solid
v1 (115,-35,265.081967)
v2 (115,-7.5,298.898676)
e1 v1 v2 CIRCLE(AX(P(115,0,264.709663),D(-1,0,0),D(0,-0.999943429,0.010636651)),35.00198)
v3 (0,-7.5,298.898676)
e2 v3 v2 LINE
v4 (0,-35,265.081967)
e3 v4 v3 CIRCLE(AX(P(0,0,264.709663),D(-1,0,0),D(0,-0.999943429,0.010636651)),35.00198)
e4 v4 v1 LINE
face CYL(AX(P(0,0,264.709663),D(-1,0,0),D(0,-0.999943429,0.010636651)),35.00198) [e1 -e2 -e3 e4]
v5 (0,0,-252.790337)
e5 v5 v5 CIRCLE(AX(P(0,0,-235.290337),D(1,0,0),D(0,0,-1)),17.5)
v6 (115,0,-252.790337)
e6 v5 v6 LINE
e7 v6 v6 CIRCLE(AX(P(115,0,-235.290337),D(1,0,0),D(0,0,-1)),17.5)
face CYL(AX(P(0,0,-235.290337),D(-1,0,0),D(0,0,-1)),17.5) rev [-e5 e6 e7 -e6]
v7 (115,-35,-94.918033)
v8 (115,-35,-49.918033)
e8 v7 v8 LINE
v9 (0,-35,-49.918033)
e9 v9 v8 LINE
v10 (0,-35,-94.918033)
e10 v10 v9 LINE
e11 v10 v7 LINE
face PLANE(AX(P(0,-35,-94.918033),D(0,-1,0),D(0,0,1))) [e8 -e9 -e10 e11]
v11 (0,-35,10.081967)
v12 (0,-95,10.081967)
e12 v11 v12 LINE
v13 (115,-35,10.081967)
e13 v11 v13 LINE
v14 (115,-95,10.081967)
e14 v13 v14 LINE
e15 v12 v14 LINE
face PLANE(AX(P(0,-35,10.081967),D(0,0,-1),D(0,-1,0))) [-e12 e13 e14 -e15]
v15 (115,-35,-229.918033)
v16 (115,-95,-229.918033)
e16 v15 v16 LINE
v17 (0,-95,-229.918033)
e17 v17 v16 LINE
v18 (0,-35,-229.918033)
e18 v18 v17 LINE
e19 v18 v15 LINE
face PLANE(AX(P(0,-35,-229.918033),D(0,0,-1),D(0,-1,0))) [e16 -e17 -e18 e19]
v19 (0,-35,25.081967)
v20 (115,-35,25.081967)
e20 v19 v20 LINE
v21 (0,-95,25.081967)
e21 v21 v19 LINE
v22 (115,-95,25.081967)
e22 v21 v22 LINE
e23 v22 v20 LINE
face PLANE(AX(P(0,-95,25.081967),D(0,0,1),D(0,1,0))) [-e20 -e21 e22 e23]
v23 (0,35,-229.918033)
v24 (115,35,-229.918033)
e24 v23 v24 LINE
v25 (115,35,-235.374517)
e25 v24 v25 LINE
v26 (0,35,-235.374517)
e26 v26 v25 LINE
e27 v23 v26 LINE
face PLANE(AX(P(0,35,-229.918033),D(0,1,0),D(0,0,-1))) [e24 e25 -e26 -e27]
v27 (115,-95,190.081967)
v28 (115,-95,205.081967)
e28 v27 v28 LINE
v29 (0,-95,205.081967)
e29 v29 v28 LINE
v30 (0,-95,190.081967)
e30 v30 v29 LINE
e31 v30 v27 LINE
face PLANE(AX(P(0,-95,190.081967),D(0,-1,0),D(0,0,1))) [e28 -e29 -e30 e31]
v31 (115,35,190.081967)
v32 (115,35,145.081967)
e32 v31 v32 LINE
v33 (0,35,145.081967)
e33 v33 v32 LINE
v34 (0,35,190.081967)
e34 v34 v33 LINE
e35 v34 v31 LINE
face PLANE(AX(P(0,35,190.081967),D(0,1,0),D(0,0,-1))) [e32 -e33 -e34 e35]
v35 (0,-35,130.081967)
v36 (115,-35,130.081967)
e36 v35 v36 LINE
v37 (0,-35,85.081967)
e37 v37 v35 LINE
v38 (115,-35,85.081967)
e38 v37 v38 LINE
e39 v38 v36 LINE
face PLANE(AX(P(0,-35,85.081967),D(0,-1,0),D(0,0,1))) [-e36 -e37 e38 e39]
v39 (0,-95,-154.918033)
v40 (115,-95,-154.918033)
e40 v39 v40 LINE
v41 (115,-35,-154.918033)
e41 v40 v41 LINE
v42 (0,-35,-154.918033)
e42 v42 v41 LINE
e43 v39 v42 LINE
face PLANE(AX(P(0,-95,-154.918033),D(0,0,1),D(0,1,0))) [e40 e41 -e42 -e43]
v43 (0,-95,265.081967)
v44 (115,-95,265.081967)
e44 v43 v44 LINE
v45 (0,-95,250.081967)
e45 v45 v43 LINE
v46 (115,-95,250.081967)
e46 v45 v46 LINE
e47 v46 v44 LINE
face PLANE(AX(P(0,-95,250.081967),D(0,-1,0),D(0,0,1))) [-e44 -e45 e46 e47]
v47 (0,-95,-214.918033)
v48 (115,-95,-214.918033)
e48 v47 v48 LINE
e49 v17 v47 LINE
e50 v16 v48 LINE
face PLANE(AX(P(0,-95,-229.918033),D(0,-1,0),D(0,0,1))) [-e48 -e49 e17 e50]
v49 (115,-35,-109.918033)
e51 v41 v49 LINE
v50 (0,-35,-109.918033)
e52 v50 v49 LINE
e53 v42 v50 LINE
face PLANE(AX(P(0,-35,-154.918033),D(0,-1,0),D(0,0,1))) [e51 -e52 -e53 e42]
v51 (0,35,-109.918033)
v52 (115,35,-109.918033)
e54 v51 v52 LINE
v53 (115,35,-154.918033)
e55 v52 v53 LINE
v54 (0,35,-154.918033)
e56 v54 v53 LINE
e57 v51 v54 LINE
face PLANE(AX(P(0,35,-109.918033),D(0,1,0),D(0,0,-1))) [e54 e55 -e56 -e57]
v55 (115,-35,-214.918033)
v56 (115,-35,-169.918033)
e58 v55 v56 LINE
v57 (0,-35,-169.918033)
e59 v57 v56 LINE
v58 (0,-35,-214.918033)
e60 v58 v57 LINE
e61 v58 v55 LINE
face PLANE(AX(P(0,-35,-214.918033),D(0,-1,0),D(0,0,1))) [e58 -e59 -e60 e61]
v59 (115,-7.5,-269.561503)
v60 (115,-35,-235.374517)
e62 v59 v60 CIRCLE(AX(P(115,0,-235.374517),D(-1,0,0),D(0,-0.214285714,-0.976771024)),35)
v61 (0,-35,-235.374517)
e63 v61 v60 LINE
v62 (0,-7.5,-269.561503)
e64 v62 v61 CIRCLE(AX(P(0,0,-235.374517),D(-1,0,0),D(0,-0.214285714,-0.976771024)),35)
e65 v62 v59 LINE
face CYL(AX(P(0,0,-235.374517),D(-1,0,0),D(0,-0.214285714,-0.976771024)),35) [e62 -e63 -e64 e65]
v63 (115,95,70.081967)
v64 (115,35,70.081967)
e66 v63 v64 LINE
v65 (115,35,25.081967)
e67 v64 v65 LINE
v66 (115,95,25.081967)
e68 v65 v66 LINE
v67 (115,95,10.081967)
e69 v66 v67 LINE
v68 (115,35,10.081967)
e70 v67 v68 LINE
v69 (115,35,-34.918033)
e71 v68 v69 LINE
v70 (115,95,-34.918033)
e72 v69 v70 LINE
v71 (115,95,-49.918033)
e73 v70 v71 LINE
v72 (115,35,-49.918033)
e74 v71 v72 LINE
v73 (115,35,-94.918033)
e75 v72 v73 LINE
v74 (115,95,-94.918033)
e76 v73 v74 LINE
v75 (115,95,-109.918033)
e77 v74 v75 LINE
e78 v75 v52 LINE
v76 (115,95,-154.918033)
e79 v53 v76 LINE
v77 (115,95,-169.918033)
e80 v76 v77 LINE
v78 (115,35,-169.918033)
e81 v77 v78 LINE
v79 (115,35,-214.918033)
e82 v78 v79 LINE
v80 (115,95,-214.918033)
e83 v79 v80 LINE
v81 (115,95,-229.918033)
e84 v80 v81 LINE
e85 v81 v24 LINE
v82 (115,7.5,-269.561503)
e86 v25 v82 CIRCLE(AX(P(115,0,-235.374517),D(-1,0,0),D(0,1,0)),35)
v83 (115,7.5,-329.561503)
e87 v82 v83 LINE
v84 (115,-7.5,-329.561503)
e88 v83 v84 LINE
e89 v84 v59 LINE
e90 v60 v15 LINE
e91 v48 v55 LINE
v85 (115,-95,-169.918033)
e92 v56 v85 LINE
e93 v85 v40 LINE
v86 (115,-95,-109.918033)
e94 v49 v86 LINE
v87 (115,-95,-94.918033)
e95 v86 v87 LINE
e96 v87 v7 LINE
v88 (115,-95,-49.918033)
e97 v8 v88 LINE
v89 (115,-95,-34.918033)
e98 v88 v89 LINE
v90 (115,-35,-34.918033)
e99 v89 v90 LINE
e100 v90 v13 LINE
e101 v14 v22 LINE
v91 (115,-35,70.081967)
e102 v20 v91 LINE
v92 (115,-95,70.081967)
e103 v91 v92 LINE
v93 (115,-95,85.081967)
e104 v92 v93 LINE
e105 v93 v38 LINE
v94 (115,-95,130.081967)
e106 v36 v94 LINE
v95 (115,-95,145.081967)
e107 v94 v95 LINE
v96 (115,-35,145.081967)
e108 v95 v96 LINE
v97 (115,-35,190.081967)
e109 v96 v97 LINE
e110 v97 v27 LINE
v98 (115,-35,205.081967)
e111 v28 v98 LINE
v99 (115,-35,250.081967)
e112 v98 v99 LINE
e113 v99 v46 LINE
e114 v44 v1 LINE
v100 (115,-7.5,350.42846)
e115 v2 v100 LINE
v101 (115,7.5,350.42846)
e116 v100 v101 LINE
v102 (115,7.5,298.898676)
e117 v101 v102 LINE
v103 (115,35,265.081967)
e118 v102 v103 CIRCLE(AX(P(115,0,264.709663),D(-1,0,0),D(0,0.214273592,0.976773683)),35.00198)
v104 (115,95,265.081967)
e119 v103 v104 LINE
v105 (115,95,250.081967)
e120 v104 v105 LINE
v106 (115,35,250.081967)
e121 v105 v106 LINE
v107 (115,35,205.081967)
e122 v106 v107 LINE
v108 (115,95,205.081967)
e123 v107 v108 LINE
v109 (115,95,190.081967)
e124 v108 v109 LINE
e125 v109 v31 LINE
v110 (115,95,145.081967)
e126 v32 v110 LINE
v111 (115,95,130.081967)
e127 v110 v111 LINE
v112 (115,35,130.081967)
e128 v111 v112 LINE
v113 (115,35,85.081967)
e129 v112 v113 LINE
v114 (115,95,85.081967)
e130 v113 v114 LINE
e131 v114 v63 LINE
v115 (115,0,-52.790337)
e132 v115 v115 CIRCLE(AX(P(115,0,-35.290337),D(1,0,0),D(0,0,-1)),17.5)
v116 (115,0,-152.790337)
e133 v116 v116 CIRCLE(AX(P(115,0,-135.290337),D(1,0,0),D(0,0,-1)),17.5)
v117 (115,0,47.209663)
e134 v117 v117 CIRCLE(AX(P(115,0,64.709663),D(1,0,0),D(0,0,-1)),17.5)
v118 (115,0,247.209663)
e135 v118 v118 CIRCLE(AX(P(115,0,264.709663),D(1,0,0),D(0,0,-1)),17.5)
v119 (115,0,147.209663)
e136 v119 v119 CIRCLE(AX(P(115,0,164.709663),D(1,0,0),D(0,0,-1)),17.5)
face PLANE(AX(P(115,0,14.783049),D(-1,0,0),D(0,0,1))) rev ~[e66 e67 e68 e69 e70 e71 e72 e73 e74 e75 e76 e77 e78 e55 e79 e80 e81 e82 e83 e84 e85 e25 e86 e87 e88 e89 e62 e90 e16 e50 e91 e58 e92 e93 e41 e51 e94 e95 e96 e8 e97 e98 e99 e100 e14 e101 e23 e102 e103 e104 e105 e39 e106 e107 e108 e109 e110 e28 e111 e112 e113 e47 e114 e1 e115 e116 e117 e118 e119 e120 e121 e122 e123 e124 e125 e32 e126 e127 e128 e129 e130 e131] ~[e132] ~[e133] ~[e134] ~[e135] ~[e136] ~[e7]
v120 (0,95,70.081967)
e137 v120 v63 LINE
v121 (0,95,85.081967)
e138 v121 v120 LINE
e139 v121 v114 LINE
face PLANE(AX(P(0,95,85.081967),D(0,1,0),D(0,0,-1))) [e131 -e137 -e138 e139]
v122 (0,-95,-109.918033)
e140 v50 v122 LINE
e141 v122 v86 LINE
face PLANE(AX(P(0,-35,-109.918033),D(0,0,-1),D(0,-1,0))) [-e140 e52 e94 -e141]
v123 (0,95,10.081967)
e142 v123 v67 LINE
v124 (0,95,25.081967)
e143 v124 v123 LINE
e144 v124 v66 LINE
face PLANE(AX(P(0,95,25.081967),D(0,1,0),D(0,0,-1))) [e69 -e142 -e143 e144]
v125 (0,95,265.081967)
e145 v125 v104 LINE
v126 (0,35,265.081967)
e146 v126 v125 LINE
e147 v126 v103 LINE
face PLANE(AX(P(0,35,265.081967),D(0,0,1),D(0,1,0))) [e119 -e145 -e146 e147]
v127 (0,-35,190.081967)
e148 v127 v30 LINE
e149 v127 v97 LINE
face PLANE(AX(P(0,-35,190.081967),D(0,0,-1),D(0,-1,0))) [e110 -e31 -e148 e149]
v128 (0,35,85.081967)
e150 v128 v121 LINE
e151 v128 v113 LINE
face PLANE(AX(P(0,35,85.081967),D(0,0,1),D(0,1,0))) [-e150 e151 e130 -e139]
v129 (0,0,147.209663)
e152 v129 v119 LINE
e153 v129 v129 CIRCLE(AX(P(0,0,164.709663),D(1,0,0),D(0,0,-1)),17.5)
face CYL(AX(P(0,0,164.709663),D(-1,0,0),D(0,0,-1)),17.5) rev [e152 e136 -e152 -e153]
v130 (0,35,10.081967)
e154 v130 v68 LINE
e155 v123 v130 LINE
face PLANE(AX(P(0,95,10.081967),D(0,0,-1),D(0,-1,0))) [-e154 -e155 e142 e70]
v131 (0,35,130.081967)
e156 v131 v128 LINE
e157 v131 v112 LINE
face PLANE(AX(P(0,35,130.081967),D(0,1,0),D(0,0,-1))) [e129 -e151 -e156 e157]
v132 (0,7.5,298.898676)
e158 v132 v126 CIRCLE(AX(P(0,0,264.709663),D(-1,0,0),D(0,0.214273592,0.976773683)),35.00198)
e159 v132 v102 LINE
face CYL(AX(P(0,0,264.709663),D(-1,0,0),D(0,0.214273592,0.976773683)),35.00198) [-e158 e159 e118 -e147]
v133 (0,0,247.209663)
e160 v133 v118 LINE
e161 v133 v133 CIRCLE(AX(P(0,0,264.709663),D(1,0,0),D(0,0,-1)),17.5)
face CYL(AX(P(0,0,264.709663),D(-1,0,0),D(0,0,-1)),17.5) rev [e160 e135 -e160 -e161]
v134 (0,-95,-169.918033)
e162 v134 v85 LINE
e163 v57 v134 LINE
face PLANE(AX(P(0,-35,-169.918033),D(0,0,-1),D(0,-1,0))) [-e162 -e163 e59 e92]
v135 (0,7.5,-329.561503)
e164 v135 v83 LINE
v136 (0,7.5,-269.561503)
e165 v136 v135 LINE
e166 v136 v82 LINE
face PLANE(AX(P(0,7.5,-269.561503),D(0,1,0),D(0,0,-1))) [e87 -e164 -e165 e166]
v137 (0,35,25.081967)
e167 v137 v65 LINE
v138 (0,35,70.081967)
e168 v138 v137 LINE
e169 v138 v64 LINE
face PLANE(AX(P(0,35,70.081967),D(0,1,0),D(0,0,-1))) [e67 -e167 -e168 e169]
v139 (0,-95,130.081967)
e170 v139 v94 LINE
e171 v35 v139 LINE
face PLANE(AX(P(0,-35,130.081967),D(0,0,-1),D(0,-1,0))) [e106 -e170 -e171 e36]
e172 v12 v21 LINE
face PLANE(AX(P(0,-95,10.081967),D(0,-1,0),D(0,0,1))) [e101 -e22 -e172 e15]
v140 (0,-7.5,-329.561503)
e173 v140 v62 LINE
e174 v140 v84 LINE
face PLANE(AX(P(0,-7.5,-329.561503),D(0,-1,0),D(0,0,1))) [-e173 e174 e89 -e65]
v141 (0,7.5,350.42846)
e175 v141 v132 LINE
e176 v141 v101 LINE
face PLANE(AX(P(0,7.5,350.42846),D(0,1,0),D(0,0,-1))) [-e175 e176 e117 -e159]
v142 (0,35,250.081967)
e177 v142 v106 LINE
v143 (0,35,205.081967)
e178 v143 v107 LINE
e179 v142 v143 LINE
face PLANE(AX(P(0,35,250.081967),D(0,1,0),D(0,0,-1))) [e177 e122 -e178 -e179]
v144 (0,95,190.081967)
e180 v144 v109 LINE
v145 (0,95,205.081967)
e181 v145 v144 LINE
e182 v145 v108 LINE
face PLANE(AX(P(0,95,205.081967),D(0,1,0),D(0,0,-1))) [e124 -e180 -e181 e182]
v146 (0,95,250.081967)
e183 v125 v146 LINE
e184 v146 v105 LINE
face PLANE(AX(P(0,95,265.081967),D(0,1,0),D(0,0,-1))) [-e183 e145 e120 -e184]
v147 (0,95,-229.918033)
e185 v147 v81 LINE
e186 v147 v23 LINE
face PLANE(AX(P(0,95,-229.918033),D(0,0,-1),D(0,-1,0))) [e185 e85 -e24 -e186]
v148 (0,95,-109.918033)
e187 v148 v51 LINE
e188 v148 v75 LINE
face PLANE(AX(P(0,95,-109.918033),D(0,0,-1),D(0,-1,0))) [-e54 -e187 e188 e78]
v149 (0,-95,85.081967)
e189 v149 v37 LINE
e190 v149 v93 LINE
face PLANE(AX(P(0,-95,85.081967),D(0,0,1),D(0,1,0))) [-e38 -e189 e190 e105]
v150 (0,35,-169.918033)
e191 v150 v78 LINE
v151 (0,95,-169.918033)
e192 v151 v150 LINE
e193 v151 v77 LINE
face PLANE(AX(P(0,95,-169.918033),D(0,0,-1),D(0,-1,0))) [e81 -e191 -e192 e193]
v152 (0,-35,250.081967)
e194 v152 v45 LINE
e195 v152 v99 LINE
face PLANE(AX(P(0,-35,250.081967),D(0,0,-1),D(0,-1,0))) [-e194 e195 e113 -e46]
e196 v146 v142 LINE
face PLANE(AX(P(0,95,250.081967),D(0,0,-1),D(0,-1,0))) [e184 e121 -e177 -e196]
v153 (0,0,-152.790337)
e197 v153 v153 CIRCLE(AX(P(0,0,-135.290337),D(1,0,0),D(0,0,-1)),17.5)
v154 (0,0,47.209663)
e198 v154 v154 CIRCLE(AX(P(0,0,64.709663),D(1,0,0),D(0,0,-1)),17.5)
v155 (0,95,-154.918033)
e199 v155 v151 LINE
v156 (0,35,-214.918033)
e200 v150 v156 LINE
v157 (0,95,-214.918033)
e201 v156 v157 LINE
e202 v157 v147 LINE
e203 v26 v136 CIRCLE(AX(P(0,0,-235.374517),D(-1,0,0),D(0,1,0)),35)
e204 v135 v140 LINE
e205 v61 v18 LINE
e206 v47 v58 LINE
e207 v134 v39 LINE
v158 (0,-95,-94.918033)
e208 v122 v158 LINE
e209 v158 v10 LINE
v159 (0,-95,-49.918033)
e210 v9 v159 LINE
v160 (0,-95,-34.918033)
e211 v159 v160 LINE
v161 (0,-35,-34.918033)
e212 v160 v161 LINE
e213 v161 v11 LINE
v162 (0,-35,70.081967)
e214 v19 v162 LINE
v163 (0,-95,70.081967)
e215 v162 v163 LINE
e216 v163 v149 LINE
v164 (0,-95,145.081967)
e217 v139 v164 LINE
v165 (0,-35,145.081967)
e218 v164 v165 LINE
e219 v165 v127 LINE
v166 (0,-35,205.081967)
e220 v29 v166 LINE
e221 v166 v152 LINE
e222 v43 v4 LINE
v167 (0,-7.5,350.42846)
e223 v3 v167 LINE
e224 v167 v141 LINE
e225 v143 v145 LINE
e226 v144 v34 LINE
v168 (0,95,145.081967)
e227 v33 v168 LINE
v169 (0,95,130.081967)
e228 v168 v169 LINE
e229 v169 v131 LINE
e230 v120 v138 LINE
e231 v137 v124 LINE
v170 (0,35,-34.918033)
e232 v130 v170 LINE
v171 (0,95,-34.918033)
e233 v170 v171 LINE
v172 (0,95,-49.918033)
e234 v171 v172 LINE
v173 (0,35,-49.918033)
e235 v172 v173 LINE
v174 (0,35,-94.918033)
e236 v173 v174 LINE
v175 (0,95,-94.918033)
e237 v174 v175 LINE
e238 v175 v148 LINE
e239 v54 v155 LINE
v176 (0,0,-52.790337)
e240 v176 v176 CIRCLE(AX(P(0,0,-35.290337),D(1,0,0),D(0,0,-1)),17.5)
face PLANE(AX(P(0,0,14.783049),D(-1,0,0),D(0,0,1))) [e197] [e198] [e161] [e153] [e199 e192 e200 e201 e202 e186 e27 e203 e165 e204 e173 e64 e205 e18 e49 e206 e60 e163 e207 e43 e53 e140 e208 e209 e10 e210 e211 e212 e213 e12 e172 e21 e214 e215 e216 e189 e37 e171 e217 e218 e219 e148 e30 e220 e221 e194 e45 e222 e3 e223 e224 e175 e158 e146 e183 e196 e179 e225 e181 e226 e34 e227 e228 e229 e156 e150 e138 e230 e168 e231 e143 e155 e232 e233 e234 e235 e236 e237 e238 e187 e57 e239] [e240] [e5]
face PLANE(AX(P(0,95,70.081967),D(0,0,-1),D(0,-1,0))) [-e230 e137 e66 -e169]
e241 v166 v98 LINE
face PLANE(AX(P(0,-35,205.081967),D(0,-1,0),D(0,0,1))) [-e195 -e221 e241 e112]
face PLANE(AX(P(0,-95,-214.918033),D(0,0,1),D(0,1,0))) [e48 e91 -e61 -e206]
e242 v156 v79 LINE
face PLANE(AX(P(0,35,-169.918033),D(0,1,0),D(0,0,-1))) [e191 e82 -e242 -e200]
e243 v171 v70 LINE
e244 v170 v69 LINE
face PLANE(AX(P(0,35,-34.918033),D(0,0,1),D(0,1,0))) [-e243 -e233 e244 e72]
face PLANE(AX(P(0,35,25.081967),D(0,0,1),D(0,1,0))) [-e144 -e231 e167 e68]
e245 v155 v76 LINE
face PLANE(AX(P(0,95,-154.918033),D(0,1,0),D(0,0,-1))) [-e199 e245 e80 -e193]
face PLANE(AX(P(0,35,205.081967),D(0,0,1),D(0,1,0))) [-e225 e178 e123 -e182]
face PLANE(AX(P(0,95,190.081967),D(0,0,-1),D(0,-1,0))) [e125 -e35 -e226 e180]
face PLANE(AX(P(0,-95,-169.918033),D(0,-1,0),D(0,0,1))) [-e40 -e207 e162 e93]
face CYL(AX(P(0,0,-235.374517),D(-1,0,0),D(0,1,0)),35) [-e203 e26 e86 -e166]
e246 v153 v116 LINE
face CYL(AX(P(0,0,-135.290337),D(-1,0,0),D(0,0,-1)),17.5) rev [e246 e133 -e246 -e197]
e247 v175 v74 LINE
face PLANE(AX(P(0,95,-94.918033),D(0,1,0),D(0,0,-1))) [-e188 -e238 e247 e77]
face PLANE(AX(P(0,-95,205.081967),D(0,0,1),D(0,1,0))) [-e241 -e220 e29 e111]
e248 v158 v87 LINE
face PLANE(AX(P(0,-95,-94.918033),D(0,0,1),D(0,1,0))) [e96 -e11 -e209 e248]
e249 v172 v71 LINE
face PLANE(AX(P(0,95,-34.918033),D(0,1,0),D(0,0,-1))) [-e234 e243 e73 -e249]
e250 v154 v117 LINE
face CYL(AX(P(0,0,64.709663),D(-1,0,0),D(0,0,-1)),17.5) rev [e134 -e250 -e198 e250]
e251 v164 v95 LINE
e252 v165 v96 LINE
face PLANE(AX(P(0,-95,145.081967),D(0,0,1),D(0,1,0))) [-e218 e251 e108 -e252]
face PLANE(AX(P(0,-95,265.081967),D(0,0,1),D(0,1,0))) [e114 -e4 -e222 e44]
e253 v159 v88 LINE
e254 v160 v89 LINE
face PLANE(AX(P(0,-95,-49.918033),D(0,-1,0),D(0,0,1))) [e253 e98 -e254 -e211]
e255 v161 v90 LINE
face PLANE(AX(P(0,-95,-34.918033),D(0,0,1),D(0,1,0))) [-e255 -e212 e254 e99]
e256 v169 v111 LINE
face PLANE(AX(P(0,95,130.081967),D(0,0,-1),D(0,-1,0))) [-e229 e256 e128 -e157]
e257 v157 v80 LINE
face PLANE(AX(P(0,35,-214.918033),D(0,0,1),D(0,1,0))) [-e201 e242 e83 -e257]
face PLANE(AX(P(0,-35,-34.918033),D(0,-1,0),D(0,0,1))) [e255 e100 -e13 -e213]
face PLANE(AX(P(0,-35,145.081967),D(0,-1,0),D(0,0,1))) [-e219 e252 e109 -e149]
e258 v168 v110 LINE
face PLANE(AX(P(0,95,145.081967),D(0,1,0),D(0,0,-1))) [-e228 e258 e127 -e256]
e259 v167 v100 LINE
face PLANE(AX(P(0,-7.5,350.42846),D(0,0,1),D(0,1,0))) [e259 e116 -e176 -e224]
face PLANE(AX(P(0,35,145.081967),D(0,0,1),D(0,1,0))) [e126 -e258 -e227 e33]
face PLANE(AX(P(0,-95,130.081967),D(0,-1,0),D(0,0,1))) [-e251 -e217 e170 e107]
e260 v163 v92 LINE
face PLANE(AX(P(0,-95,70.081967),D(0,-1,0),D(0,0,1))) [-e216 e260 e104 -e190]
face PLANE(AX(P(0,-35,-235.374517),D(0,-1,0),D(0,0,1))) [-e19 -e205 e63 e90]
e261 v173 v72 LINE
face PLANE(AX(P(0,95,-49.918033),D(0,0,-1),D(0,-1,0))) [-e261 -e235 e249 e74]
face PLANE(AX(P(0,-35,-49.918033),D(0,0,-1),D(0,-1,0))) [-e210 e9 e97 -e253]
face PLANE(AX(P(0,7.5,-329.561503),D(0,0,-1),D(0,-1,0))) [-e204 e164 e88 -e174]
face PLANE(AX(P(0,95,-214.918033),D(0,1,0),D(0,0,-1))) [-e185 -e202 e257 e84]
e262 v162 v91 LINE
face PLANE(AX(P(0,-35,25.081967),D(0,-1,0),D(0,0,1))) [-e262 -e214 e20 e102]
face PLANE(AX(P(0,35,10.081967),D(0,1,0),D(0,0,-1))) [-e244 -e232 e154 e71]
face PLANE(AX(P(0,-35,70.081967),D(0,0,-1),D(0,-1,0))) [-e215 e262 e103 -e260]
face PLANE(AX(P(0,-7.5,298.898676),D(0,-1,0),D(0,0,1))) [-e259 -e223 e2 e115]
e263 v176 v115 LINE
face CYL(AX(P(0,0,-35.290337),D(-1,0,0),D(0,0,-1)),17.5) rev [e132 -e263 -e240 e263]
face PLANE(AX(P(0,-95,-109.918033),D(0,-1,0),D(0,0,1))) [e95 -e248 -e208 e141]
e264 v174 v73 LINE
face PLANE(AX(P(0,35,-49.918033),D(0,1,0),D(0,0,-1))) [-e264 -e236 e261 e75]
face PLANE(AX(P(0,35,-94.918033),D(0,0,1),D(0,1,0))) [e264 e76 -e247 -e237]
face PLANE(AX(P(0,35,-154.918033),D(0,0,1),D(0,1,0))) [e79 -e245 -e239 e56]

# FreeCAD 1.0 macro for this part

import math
import FreeCAD as App
import Part
import Sketcher

V = App.Vector
Q = App.Units.Quantity

doc = App.newDocument("Part")
body = doc.addObject("PartDesign::Body", "Body")

sketch1 = body.newObject("Sketcher::SketchObject", "Sketch")
sketch1.AttachmentSupport = (doc.getObject("YZ_Plane"), [""])
sketch1.MapMode = "FlatFace"
sketch1.addGeometry(Part.LineSegment(V(35, 205.081967, 0), V(35, 250.081967, 0)), False)
sketch1.addGeometry(Part.LineSegment(V(35, 250.081967, 0), V(95, 250.081967, 0)), False)
sketch1.addGeometry(Part.LineSegment(V(95, 250.081967, 0), V(95, 265.081967, 0)), False)
sketch1.addGeometry(Part.LineSegment(V(95, 265.081967, 0), V(35, 265.081967, 0)), False)
sketch1.addGeometry(Part.ArcOfCircle(Part.Circle(V(0, 264.709663, 0), V(0, 0, 1), 35.00198), math.radians(0.609447), math.radians(77.627086)), False)
sketch1.addGeometry(Part.LineSegment(V(7.5, 298.898676, 0), V(7.5, 350.42846, 0)), False)
sketch1.addGeometry(Part.LineSegment(V(7.5, 350.42846, 0), V(-7.5, 350.42846, 0)), False)
sketch1.addGeometry(Part.LineSegment(V(-7.5, 350.42846, 0), V(-7.5, 298.898676, 0)), False)
sketch1.addGeometry(Part.ArcOfCircle(Part.Circle(V(0, 264.709663, 0), V(0, 0, 1), 35.00198), math.radians(102.372914), math.radians(179.390553)), False)
sketch1.addGeometry(Part.LineSegment(V(-35, 265.081967, 0), V(-95, 265.081967, 0)), False)
sketch1.addGeometry(Part.LineSegment(V(-95, 265.081967, 0), V(-95, 250.081967, 0)), False)
sketch1.addGeometry(Part.LineSegment(V(-95, 250.081967, 0), V(-35, 250.081967, 0)), False)
sketch1.addGeometry(Part.LineSegment(V(-35, 250.081967, 0), V(-35, 205.081967, 0)), False)
sketch1.addGeometry(Part.LineSegment(V(-35, 205.081967, 0), V(-95, 205.081967, 0)), False)
sketch1.addGeometry(Part.LineSegment(V(-95, 205.081967, 0), V(-95, 190.081967, 0)), False)
sketch1.addGeometry(Part.LineSegment(V(-95, 190.081967, 0), V(-35, 190.081967, 0)), False)
sketch1.addGeometry(Part.LineSegment(V(-35, 190.081967, 0), V(-35, 145.081967, 0)), False)
sketch1.addGeometry(Part.LineSegment(V(-35, 145.081967, 0), V(-95, 145.081967, 0)), False)
sketch1.addGeometry(Part.LineSegment(V(-95, 145.081967, 0), V(-95, 130.081967, 0)), False)
sketch1.addGeometry(Part.LineSegment(V(-95, 130.081967, 0), V(-35, 130.081967, 0)), False)
sketch1.addGeometry(Part.LineSegment(V(-35, 130.081967, 0), V(-35, 85.081967, 0)), False)
sketch1.addGeometry(Part.LineSegment(V(-35, 85.081967, 0), V(-95, 85.081967, 0)), False)
sketch1.addGeometry(Part.LineSegment(V(-95, 85.081967, 0), V(-95, 70.081967, 0)), False)
sketch1.addGeometry(Part.LineSegment(V(-95, 70.081967, 0), V(-35, 70.081967, 0)), False)
sketch1.addGeometry(Part.LineSegment(V(-35, 70.081967, 0), V(-35, 25.081967, 0)), False)
sketch1.addGeometry(Part.LineSegment(V(-35, 25.081967, 0), V(-95, 25.081967, 0)), False)
sketch1.addGeometry(Part.LineSegment(V(-95, 25.081967, 0), V(-95, 10.081967, 0)), False)
sketch1.addGeometry(Part.LineSegment(V(-95, 10.081967, 0), V(-35, 10.081967, 0)), False)
sketch1.addGeometry(Part.LineSegment(V(-35, 10.081967, 0), V(-35, -34.918033, 0)), False)
sketch1.addGeometry(Part.LineSegment(V(-35, -34.918033, 0), V(-95, -34.918033, 0)), False)
sketch1.addGeometry(Part.LineSegment(V(-95, -34.918033, 0), V(-95, -49.918033, 0)), False)
sketch1.addGeometry(Part.LineSegment(V(-95, -49.918033, 0), V(-35, -49.918033, 0)), False)
sketch1.addGeometry(Part.LineSegment(V(-35, -49.918033, 0), V(-35, -94.918033, 0)), False)
sketch1.addGeometry(Part.LineSegment(V(-35, -94.918033, 0), V(-95, -94.918033, 0)), False)
sketch1.addGeometry(Part.LineSegment(V(-95, -94.918033, 0), V(-95, -109.918033, 0)), False)
sketch1.addGeometry(Part.LineSegment(V(-95, -109.918033, 0), V(-35, -109.918033, 0)), False)
sketch1.addGeometry(Part.LineSegment(V(-35, -109.918033, 0), V(-35, -154.918033, 0)), False)
sketch1.addGeometry(Part.LineSegment(V(-35, -154.918033, 0), V(-95, -154.918033, 0)), False)
sketch1.addGeometry(Part.LineSegment(V(-95, -154.918033, 0), V(-95, -169.918033, 0)), False)
sketch1.addGeometry(Part.LineSegment(V(-95, -169.918033, 0), V(-35, -169.918033, 0)), False)
sketch1.addGeometry(Part.LineSegment(V(-35, -169.918033, 0), V(-35, -214.918033, 0)), False)
sketch1.addGeometry(Part.LineSegment(V(-35, -214.918033, 0), V(-95, -214.918033, 0)), False)
sketch1.addGeometry(Part.LineSegment(V(-95, -214.918033, 0), V(-95, -229.918033, 0)), False)
sketch1.addGeometry(Part.LineSegment(V(-95, -229.918033, 0), V(-35, -229.918033, 0)), False)
sketch1.addGeometry(Part.LineSegment(V(-35, -229.918033, 0), V(-35, -235.374517, 0)), False)
sketch1.addGeometry(Part.ArcOfCircle(Part.Circle(V(0, -235.374517, 0), V(0, 0, 1), 35), math.radians(180), math.radians(257.626375)), False)
sketch1.addGeometry(Part.LineSegment(V(-7.5, -269.561503, 0), V(-7.5, -329.561503, 0)), False)
sketch1.addGeometry(Part.LineSegment(V(-7.5, -329.561503, 0), V(7.5, -329.561503, 0)), False)
sketch1.addGeometry(Part.LineSegment(V(7.5, -329.561503, 0), V(7.5, -269.561503, 0)), False)
sketch1.addGeometry(Part.ArcOfCircle(Part.Circle(V(0, -235.374517, 0), V(0, 0, 1), 35), math.radians(-77.626375), math.radians(0)), False)
sketch1.addGeometry(Part.LineSegment(V(35, -235.374517, 0), V(35, -229.918033, 0)), False)
sketch1.addGeometry(Part.LineSegment(V(35, -229.918033, 0), V(95, -229.918033, 0)), False)
sketch1.addGeometry(Part.LineSegment(V(95, -229.918033, 0), V(95, -214.918033, 0)), False)
sketch1.addGeometry(Part.LineSegment(V(95, -214.918033, 0), V(35, -214.918033, 0)), False)
sketch1.addGeometry(Part.LineSegment(V(35, -214.918033, 0), V(35, -169.918033, 0)), False)
sketch1.addGeometry(Part.LineSegment(V(35, -169.918033, 0), V(95, -169.918033, 0)), False)
sketch1.addGeometry(Part.LineSegment(V(95, -169.918033, 0), V(95, -154.918033, 0)), False)
sketch1.addGeometry(Part.LineSegment(V(95, -154.918033, 0), V(35, -154.918033, 0)), False)
sketch1.addGeometry(Part.LineSegment(V(35, -154.918033, 0), V(35, -109.918033, 0)), False)
sketch1.addGeometry(Part.LineSegment(V(35, -109.918033, 0), V(95, -109.918033, 0)), False)
sketch1.addGeometry(Part.LineSegment(V(95, -109.918033, 0), V(95, -94.918033, 0)), False)
sketch1.addGeometry(Part.LineSegment(V(95, -94.918033, 0), V(35, -94.918033, 0)), False)
sketch1.addGeometry(Part.LineSegment(V(35, -94.918033, 0), V(35, -49.918033, 0)), False)
sketch1.addGeometry(Part.LineSegment(V(35, -49.918033, 0), V(95, -49.918033, 0)), False)
sketch1.addGeometry(Part.LineSegment(V(95, -49.918033, 0), V(95, -34.918033, 0)), False)
sketch1.addGeometry(Part.LineSegment(V(95, -34.918033, 0), V(35, -34.918033, 0)), False)
sketch1.addGeometry(Part.LineSegment(V(35, -34.918033, 0), V(35, 10.081967, 0)), False)
sketch1.addGeometry(Part.LineSegment(V(35, 10.081967, 0), V(95, 10.081967, 0)), False)
sketch1.addGeometry(Part.LineSegment(V(95, 10.081967, 0), V(95, 25.081967, 0)), False)
sketch1.addGeometry(Part.LineSegment(V(95, 25.081967, 0), V(35, 25.081967, 0)), False)
sketch1.addGeometry(Part.LineSegment(V(35, 25.081967, 0), V(35, 70.081967, 0)), False)
sketch1.addGeometry(Part.LineSegment(V(35, 70.081967, 0), V(95, 70.081967, 0)), False)
sketch1.addGeometry(Part.LineSegment(V(95, 70.081967, 0), V(95, 85.081967, 0)), False)
sketch1.addGeometry(Part.LineSegment(V(95, 85.081967, 0), V(35, 85.081967, 0)), False)
sketch1.addGeometry(Part.LineSegment(V(35, 85.081967, 0), V(35, 130.081967, 0)), False)
sketch1.addGeometry(Part.LineSegment(V(35, 130.081967, 0), V(95, 130.081967, 0)), False)
sketch1.addGeometry(Part.LineSegment(V(95, 130.081967, 0), V(95, 145.081967, 0)), False)
sketch1.addGeometry(Part.LineSegment(V(95, 145.081967, 0), V(35, 145.081967, 0)), False)
sketch1.addGeometry(Part.LineSegment(V(35, 145.081967, 0), V(35, 190.081967, 0)), False)
sketch1.addGeometry(Part.LineSegment(V(35, 190.081967, 0), V(95, 190.081967, 0)), False)
sketch1.addGeometry(Part.LineSegment(V(95, 190.081967, 0), V(95, 205.081967, 0)), False)
sketch1.addGeometry(Part.LineSegment(V(95, 205.081967, 0), V(35, 205.081967, 0)), False)
sketch1.addGeometry(Part.Circle(V(0, -235.290337, 0), V(0, 0, 1), 17.5), False)
sketch1.addGeometry(Part.Circle(V(0, -135.290337, 0), V(0, 0, 1), 17.5), False)
sketch1.addGeometry(Part.Circle(V(0, -35.290337, 0), V(0, 0, 1), 17.5), False)
sketch1.addGeometry(Part.Circle(V(0, 64.709663, 0), V(0, 0, 1), 17.5), False)
sketch1.addGeometry(Part.Circle(V(0, 164.709663, 0), V(0, 0, 1), 17.5), False)
sketch1.addGeometry(Part.Circle(V(0, 264.709663, 0), V(0, 0, 1), 17.5), False)
sketch1.addConstraint(Sketcher.Constraint("Coincident", 0, 2, 1, 1))
sketch1.addConstraint(Sketcher.Constraint("Coincident", 1, 2, 2, 1))
sketch1.addConstraint(Sketcher.Constraint("Coincident", 2, 2, 3, 1))
sketch1.addConstraint(Sketcher.Constraint("Coincident", 3, 2, 4, 1))
sketch1.addConstraint(Sketcher.Constraint("Coincident", 4, 2, 5, 1))
sketch1.addConstraint(Sketcher.Constraint("Coincident", 5, 2, 6, 1))
sketch1.addConstraint(Sketcher.Constraint("Coincident", 6, 2, 7, 1))
sketch1.addConstraint(Sketcher.Constraint("Coincident", 7, 2, 8, 1))
sketch1.addConstraint(Sketcher.Constraint("Coincident", 8, 2, 9, 1))
sketch1.addConstraint(Sketcher.Constraint("Coincident", 9, 2, 10, 1))
sketch1.addConstraint(Sketcher.Constraint("Coincident", 10, 2, 11, 1))
sketch1.addConstraint(Sketcher.Constraint("Coincident", 11, 2, 12, 1))
sketch1.addConstraint(Sketcher.Constraint("Coincident", 12, 2, 13, 1))
sketch1.addConstraint(Sketcher.Constraint("Coincident", 13, 2, 14, 1))
sketch1.addConstraint(Sketcher.Constraint("Coincident", 14, 2, 15, 1))
sketch1.addConstraint(Sketcher.Constraint("Coincident", 15, 2, 16, 1))
sketch1.addConstraint(Sketcher.Constraint("Coincident", 16, 2, 17, 1))
sketch1.addConstraint(Sketcher.Constraint("Coincident", 17, 2, 18, 1))
sketch1.addConstraint(Sketcher.Constraint("Coincident", 18, 2, 19, 1))
sketch1.addConstraint(Sketcher.Constraint("Coincident", 19, 2, 20, 1))
sketch1.addConstraint(Sketcher.Constraint("Coincident", 20, 2, 21, 1))
sketch1.addConstraint(Sketcher.Constraint("Coincident", 21, 2, 22, 1))
sketch1.addConstraint(Sketcher.Constraint("Coincident", 22, 2, 23, 1))
sketch1.addConstraint(Sketcher.Constraint("Coincident", 23, 2, 24, 1))
sketch1.addConstraint(Sketcher.Constraint("Coincident", 24, 2, 25, 1))
sketch1.addConstraint(Sketcher.Constraint("Coincident", 25, 2, 26, 1))
sketch1.addConstraint(Sketcher.Constraint("Coincident", 26, 2, 27, 1))
sketch1.addConstraint(Sketcher.Constraint("Coincident", 27, 2, 28, 1))
sketch1.addConstraint(Sketcher.Constraint("Coincident", 28, 2, 29, 1))
sketch1.addConstraint(Sketcher.Constraint("Coincident", 29, 2, 30, 1))
sketch1.addConstraint(Sketcher.Constraint("Coincident", 30, 2, 31, 1))
sketch1.addConstraint(Sketcher.Constraint("Coincident", 31, 2, 32, 1))
sketch1.addConstraint(Sketcher.Constraint("Coincident", 32, 2, 33, 1))
sketch1.addConstraint(Sketcher.Constraint("Coincident", 33, 2, 34, 1))
sketch1.addConstraint(Sketcher.Constraint("Coincident", 34, 2, 35, 1))
sketch1.addConstraint(Sketcher.Constraint("Coincident", 35, 2, 36, 1))
sketch1.addConstraint(Sketcher.Constraint("Coincident", 36, 2, 37, 1))
sketch1.addConstraint(Sketcher.Constraint("Coincident", 37, 2, 38, 1))
sketch1.addConstraint(Sketcher.Constraint("Coincident", 38, 2, 39, 1))
sketch1.addConstraint(Sketcher.Constraint("Coincident", 39, 2, 40, 1))
sketch1.addConstraint(Sketcher.Constraint("Coincident", 40, 2, 41, 1))
sketch1.addConstraint(Sketcher.Constraint("Coincident", 41, 2, 42, 1))
sketch1.addConstraint(Sketcher.Constraint("Coincident", 42, 2, 43, 1))
sketch1.addConstraint(Sketcher.Constraint("Coincident", 43, 2, 44, 1))
sketch1.addConstraint(Sketcher.Constraint("Tangent", 44, 2, 45, 1))
sketch1.addConstraint(Sketcher.Constraint("Coincident", 45, 2, 46, 1))
sketch1.addConstraint(Sketcher.Constraint("Coincident", 46, 2, 47, 1))
sketch1.addConstraint(Sketcher.Constraint("Coincident", 47, 2, 48, 1))
sketch1.addConstraint(Sketcher.Constraint("Coincident", 48, 2, 49, 1))
sketch1.addConstraint(Sketcher.Constraint("Tangent", 49, 2, 50, 1))
sketch1.addConstraint(Sketcher.Constraint("Coincident", 50, 2, 51, 1))
sketch1.addConstraint(Sketcher.Constraint("Coincident", 51, 2, 52, 1))
sketch1.addConstraint(Sketcher.Constraint("Coincident", 52, 2, 53, 1))
sketch1.addConstraint(Sketcher.Constraint("Coincident", 53, 2, 54, 1))
sketch1.addConstraint(Sketcher.Constraint("Coincident", 54, 2, 55, 1))
sketch1.addConstraint(Sketcher.Constraint("Coincident", 55, 2, 56, 1))
sketch1.addConstraint(Sketcher.Constraint("Coincident", 56, 2, 57, 1))
sketch1.addConstraint(Sketcher.Constraint("Coincident", 57, 2, 58, 1))
sketch1.addConstraint(Sketcher.Constraint("Coincident", 58, 2, 59, 1))
sketch1.addConstraint(Sketcher.Constraint("Coincident", 59, 2, 60, 1))
sketch1.addConstraint(Sketcher.Constraint("Coincident", 60, 2, 61, 1))
sketch1.addConstraint(Sketcher.Constraint("Coincident", 61, 2, 62, 1))
sketch1.addConstraint(Sketcher.Constraint("Coincident", 62, 2, 63, 1))
sketch1.addConstraint(Sketcher.Constraint("Coincident", 63, 2, 64, 1))
sketch1.addConstraint(Sketcher.Constraint("Coincident", 64, 2, 65, 1))
sketch1.addConstraint(Sketcher.Constraint("Coincident", 65, 2, 66, 1))
sketch1.addConstraint(Sketcher.Constraint("Coincident", 66, 2, 67, 1))
sketch1.addConstraint(Sketcher.Constraint("Coincident", 67, 2, 68, 1))
sketch1.addConstraint(Sketcher.Constraint("Coincident", 68, 2, 69, 1))
sketch1.addConstraint(Sketcher.Constraint("Coincident", 69, 2, 70, 1))
sketch1.addConstraint(Sketcher.Constraint("Coincident", 70, 2, 71, 1))
sketch1.addConstraint(Sketcher.Constraint("Coincident", 71, 2, 72, 1))
sketch1.addConstraint(Sketcher.Constraint("Coincident", 72, 2, 73, 1))
sketch1.addConstraint(Sketcher.Constraint("Coincident", 73, 2, 74, 1))
sketch1.addConstraint(Sketcher.Constraint("Coincident", 74, 2, 75, 1))
sketch1.addConstraint(Sketcher.Constraint("Coincident", 75, 2, 76, 1))
sketch1.addConstraint(Sketcher.Constraint("Coincident", 76, 2, 77, 1))
sketch1.addConstraint(Sketcher.Constraint("Coincident", 77, 2, 78, 1))
sketch1.addConstraint(Sketcher.Constraint("Coincident", 78, 2, 79, 1))
sketch1.addConstraint(Sketcher.Constraint("Coincident", 79, 2, 80, 1))
sketch1.addConstraint(Sketcher.Constraint("Coincident", 80, 2, 81, 1))
sketch1.addConstraint(Sketcher.Constraint("Coincident", 81, 2, 0, 1))
sketch1.addConstraint(Sketcher.Constraint("Vertical", 0))
sketch1.addConstraint(Sketcher.Constraint("Horizontal", 1))
sketch1.addConstraint(Sketcher.Constraint("Vertical", 2))
sketch1.addConstraint(Sketcher.Constraint("Horizontal", 3))
sketch1.addConstraint(Sketcher.Constraint("Vertical", 5))
sketch1.addConstraint(Sketcher.Constraint("Horizontal", 6))
sketch1.addConstraint(Sketcher.Constraint("Vertical", 7))
sketch1.addConstraint(Sketcher.Constraint("Horizontal", 9))
sketch1.addConstraint(Sketcher.Constraint("Vertical", 10))
sketch1.addConstraint(Sketcher.Constraint("Horizontal", 11))
sketch1.addConstraint(Sketcher.Constraint("Vertical", 12))
sketch1.addConstraint(Sketcher.Constraint("Horizontal", 13))
sketch1.addConstraint(Sketcher.Constraint("Vertical", 14))
sketch1.addConstraint(Sketcher.Constraint("Horizontal", 15))
sketch1.addConstraint(Sketcher.Constraint("Vertical", 16))
sketch1.addConstraint(Sketcher.Constraint("Horizontal", 17))
sketch1.addConstraint(Sketcher.Constraint("Vertical", 18))
sketch1.addConstraint(Sketcher.Constraint("Horizontal", 19))
sketch1.addConstraint(Sketcher.Constraint("Vertical", 20))
sketch1.addConstraint(Sketcher.Constraint("Horizontal", 21))
sketch1.addConstraint(Sketcher.Constraint("Vertical", 22))
sketch1.addConstraint(Sketcher.Constraint("Horizontal", 23))
sketch1.addConstraint(Sketcher.Constraint("Vertical", 24))
sketch1.addConstraint(Sketcher.Constraint("Horizontal", 25))
sketch1.addConstraint(Sketcher.Constraint("Vertical", 26))
sketch1.addConstraint(Sketcher.Constraint("Horizontal", 27))
sketch1.addConstraint(Sketcher.Constraint("Vertical", 28))
sketch1.addConstraint(Sketcher.Constraint("Horizontal", 29))
sketch1.addConstraint(Sketcher.Constraint("Vertical", 30))
sketch1.addConstraint(Sketcher.Constraint("Horizontal", 31))
sketch1.addConstraint(Sketcher.Constraint("Vertical", 32))
sketch1.addConstraint(Sketcher.Constraint("Horizontal", 33))
sketch1.addConstraint(Sketcher.Constraint("Vertical", 34))
sketch1.addConstraint(Sketcher.Constraint("Horizontal", 35))
sketch1.addConstraint(Sketcher.Constraint("Vertical", 36))
sketch1.addConstraint(Sketcher.Constraint("Horizontal", 37))
sketch1.addConstraint(Sketcher.Constraint("Vertical", 38))
sketch1.addConstraint(Sketcher.Constraint("Horizontal", 39))
sketch1.addConstraint(Sketcher.Constraint("Vertical", 40))
sketch1.addConstraint(Sketcher.Constraint("Horizontal", 41))
sketch1.addConstraint(Sketcher.Constraint("Vertical", 42))
sketch1.addConstraint(Sketcher.Constraint("Horizontal", 43))
sketch1.addConstraint(Sketcher.Constraint("Vertical", 44))
sketch1.addConstraint(Sketcher.Constraint("Vertical", 46))
sketch1.addConstraint(Sketcher.Constraint("Horizontal", 47))
sketch1.addConstraint(Sketcher.Constraint("Vertical", 48))
sketch1.addConstraint(Sketcher.Constraint("Vertical", 50))
sketch1.addConstraint(Sketcher.Constraint("Horizontal", 51))
sketch1.addConstraint(Sketcher.Constraint("Vertical", 52))
sketch1.addConstraint(Sketcher.Constraint("Horizontal", 53))
sketch1.addConstraint(Sketcher.Constraint("Vertical", 54))
sketch1.addConstraint(Sketcher.Constraint("Horizontal", 55))
sketch1.addConstraint(Sketcher.Constraint("Vertical", 56))
sketch1.addConstraint(Sketcher.Constraint("Horizontal", 57))
sketch1.addConstraint(Sketcher.Constraint("Vertical", 58))
sketch1.addConstraint(Sketcher.Constraint("Horizontal", 59))
sketch1.addConstraint(Sketcher.Constraint("Vertical", 60))
sketch1.addConstraint(Sketcher.Constraint("Horizontal", 61))
sketch1.addConstraint(Sketcher.Constraint("Vertical", 62))
sketch1.addConstraint(Sketcher.Constraint("Horizontal", 63))
sketch1.addConstraint(Sketcher.Constraint("Vertical", 64))
sketch1.addConstraint(Sketcher.Constraint("Horizontal", 65))
sketch1.addConstraint(Sketcher.Constraint("Vertical", 66))
sketch1.addConstraint(Sketcher.Constraint("Horizontal", 67))
sketch1.addConstraint(Sketcher.Constraint("Vertical", 68))
sketch1.addConstraint(Sketcher.Constraint("Horizontal", 69))
sketch1.addConstraint(Sketcher.Constraint("Vertical", 70))
sketch1.addConstraint(Sketcher.Constraint("Horizontal", 71))
sketch1.addConstraint(Sketcher.Constraint("Vertical", 72))
sketch1.addConstraint(Sketcher.Constraint("Horizontal", 73))
sketch1.addConstraint(Sketcher.Constraint("Vertical", 74))
sketch1.addConstraint(Sketcher.Constraint("Horizontal", 75))
sketch1.addConstraint(Sketcher.Constraint("Vertical", 76))
sketch1.addConstraint(Sketcher.Constraint("Horizontal", 77))
sketch1.addConstraint(Sketcher.Constraint("Vertical", 78))
sketch1.addConstraint(Sketcher.Constraint("Horizontal", 79))
sketch1.addConstraint(Sketcher.Constraint("Vertical", 80))
sketch1.addConstraint(Sketcher.Constraint("Horizontal", 81))
sketch1.addConstraint(Sketcher.Constraint("Coincident", 8, 3, 4, 3))
sketch1.addConstraint(Sketcher.Constraint("Coincident", 49, 3, 45, 3))
sketch1.addConstraint(Sketcher.Constraint("Coincident", 87, 3, 4, 3))
sketch1.addConstraint(Sketcher.Constraint("Equal", 4, 8))
sketch1.addConstraint(Sketcher.Constraint("Equal", 45, 49))
sketch1.addConstraint(Sketcher.Constraint("Equal", 82, 83))
sketch1.addConstraint(Sketcher.Constraint("Equal", 83, 84))
sketch1.addConstraint(Sketcher.Constraint("Equal", 84, 85))
sketch1.addConstraint(Sketcher.Constraint("Equal", 85, 86))
sketch1.addConstraint(Sketcher.Constraint("Equal", 86, 87))
sketch1.addConstraint(Sketcher.Constraint("Symmetric", 4, 2, 7, 2, -2))
sketch1.addConstraint(Sketcher.Constraint("Symmetric", 2, 2, 9, 2, -2))
sketch1.addConstraint(Sketcher.Constraint("Symmetric", 0, 2, 11, 2, -2))
sketch1.addConstraint(Sketcher.Constraint("Symmetric", 45, 2, 48, 2, -2))
sketch1.addConstraint(Sketcher.Constraint("Symmetric", 42, 2, 51, 2, -2))
sketch1.addConstraint(Sketcher.Constraint("Symmetric", 40, 2, 53, 2, -2))
sketch1.addConstraint(Sketcher.Constraint("Symmetric", 38, 2, 55, 2, -2))
sketch1.addConstraint(Sketcher.Constraint("Symmetric", 36, 2, 57, 2, -2))
sketch1.addConstraint(Sketcher.Constraint("Symmetric", 34, 2, 59, 2, -2))
sketch1.addConstraint(Sketcher.Constraint("Symmetric", 32, 2, 61, 2, -2))
sketch1.addConstraint(Sketcher.Constraint("Symmetric", 30, 2, 63, 2, -2))
sketch1.addConstraint(Sketcher.Constraint("Symmetric", 28, 2, 65, 2, -2))
sketch1.addConstraint(Sketcher.Constraint("Symmetric", 26, 2, 67, 2, -2))
sketch1.addConstraint(Sketcher.Constraint("Symmetric", 24, 2, 69, 2, -2))
sketch1.addConstraint(Sketcher.Constraint("Symmetric", 22, 2, 71, 2, -2))
sketch1.addConstraint(Sketcher.Constraint("Symmetric", 20, 2, 73, 2, -2))
sketch1.addConstraint(Sketcher.Constraint("Symmetric", 18, 2, 75, 2, -2))
sketch1.addConstraint(Sketcher.Constraint("Symmetric", 16, 2, 77, 2, -2))
sketch1.addConstraint(Sketcher.Constraint("Symmetric", 14, 2, 79, 2, -2))
sketch1.addConstraint(Sketcher.Constraint("PointOnObject", 82, 3, -2))
sketch1.addConstraint(Sketcher.Constraint("PointOnObject", 83, 3, -2))
sketch1.addConstraint(Sketcher.Constraint("PointOnObject", 84, 3, -2))
sketch1.addConstraint(Sketcher.Constraint("PointOnObject", 85, 3, -2))
sketch1.addConstraint(Sketcher.Constraint("PointOnObject", 86, 3, -2))
sketch1.addConstraint(Sketcher.Constraint("Horizontal", 13, 2, 80, 2))
sketch1.addConstraint(Sketcher.Constraint("Vertical", 0, 2, 3, 2))
sketch1.addConstraint(Sketcher.Constraint("Vertical", 10, 2, 13, 2))
sketch1.addConstraint(Sketcher.Constraint("Vertical", 12, 2, 15, 2))
sketch1.addConstraint(Sketcher.Constraint("Vertical", 14, 2, 17, 2))
sketch1.addConstraint(Sketcher.Constraint("Vertical", 16, 2, 19, 2))
sketch1.addConstraint(Sketcher.Constraint("Vertical", 18, 2, 21, 2))
sketch1.addConstraint(Sketcher.Constraint("Vertical", 20, 2, 23, 2))
sketch1.addConstraint(Sketcher.Constraint("Vertical", 22, 2, 25, 2))
sketch1.addConstraint(Sketcher.Constraint("Vertical", 24, 2, 27, 2))
sketch1.addConstraint(Sketcher.Constraint("Vertical", 26, 2, 29, 2))
sketch1.addConstraint(Sketcher.Constraint("Vertical", 28, 2, 31, 2))
sketch1.addConstraint(Sketcher.Constraint("Vertical", 30, 2, 33, 2))
sketch1.addConstraint(Sketcher.Constraint("Vertical", 32, 2, 35, 2))
sketch1.addConstraint(Sketcher.Constraint("Vertical", 34, 2, 37, 2))
sketch1.addConstraint(Sketcher.Constraint("Vertical", 36, 2, 39, 2))
sketch1.addConstraint(Sketcher.Constraint("Vertical", 38, 2, 41, 2))
sketch1.addConstraint(Sketcher.Constraint("Vertical", 40, 2, 43, 2))
sketch1.addConstraint(Sketcher.Constraint("Vertical", 7, 2, 45, 2))
sketch1.addConstraint(Sketcher.Constraint("Equal", 47, 2))
sketch1.addConstraint(Sketcher.Constraint("Equal", 10, 14))
sketch1.addConstraint(Sketcher.Constraint("Equal", 12, 16))
sketch1.addConstraint(Sketcher.Constraint("Equal", 14, 18))
sketch1.addConstraint(Sketcher.Constraint("Equal", 16, 20))
sketch1.addConstraint(Sketcher.Constraint("Equal", 18, 22))
sketch1.addConstraint(Sketcher.Constraint("Equal", 20, 24))
sketch1.addConstraint(Sketcher.Constraint("Equal", 22, 26))
sketch1.addConstraint(Sketcher.Constraint("Equal", 24, 28))
sketch1.addConstraint(Sketcher.Constraint("Equal", 26, 30))
sketch1.addConstraint(Sketcher.Constraint("Equal", 28, 32))
sketch1.addConstraint(Sketcher.Constraint("Equal", 30, 34))
sketch1.addConstraint(Sketcher.Constraint("Equal", 32, 36))
sketch1.addConstraint(Sketcher.Constraint("Equal", 34, 38))
sketch1.addConstraint(Sketcher.Constraint("Equal", 36, 40))
sketch1.addConstraint(Sketcher.Constraint("Equal", 38, 42))
sketch1.addConstraint(Sketcher.Constraint("Equal", 81, 46))
sketch1.addConstraint(Sketcher.Constraint("Diameter", 82, Q("35 mm")))
sketch1.addConstraint(Sketcher.Constraint("Radius", 45, Q("35 mm")))
sketch1.addConstraint(Sketcher.Constraint("DistanceX", 1, 1, 1, 2, Q("60 mm")))
sketch1.addConstraint(Sketcher.Constraint("DistanceX", 6, 2, 6, 1, Q("15 mm")))
sketch1.addConstraint(Sketcher.Constraint("DistanceY", 0, 1, 0, 2, Q("45 mm")))
sketch1.addConstraint(Sketcher.Constraint("Radius", 4, Q("35.00198 mm")))
sketch1.addConstraint(Sketcher.Constraint("DistanceY", 5, 1, 5, 2, Q("51.529783 mm")))
sketch1.addConstraint(Sketcher.Constraint("DistanceY", 44, 2, 44, 1, Q("5.456484 mm")))
sketch1.addConstraint(Sketcher.Constraint("DistanceY", -1, 1, 5, 2, Q("350.42846 mm")))
sketch1.addConstraint(Sketcher.Constraint("DistanceY", 82, 3, -1, 1, Q("235.290337 mm")))
sketch1.addConstraint(Sketcher.Constraint("DistanceY", 83, 3, -1, 1, Q("135.290337 mm")))
sketch1.addConstraint(Sketcher.Constraint("DistanceY", 84, 3, -1, 1, Q("35.290337 mm")))
sketch1.addConstraint(Sketcher.Constraint("DistanceY", -1, 1, 85, 3, Q("64.709663 mm")))
sketch1.addConstraint(Sketcher.Constraint("DistanceY", -1, 1, 86, 3, Q("164.709663 mm")))
pad1 = body.newObject("PartDesign::Pad", "Pad")
pad1.Profile = sketch1
pad1.Length = 115

doc.recompute()
